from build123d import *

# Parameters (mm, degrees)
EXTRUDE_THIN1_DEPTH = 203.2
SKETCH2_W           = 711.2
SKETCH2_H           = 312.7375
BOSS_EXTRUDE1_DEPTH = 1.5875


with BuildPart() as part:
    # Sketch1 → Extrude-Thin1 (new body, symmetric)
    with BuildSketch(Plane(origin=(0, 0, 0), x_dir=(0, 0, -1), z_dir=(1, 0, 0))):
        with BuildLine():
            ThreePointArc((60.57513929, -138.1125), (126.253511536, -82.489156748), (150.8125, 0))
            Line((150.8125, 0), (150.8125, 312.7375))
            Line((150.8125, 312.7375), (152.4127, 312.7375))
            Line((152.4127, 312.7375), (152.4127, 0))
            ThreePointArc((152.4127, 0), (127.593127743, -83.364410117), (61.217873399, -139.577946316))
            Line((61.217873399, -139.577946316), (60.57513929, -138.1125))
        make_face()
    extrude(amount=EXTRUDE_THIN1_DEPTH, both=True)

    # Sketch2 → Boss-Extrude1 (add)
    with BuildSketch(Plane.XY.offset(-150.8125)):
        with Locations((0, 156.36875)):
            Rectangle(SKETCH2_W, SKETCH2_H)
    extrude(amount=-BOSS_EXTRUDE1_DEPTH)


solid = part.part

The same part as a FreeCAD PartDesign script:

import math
import FreeCAD as App
import Part
import Sketcher
from FreeCAD import Vector
Q = App.Units.Quantity

doc = App.newDocument("Part")
body = doc.addObject("PartDesign::Body", "Body")

sketch1 = body.newObject("Sketcher::SketchObject", "Sketch")
sketch1.AttachmentSupport = (doc.getObject("YZ_Plane"), [""])
sketch1.MapMode = "FlatFace"
sketch1.addGeometry(Part.ArcOfCircle(Part.Circle(Vector(0, 0, 0), Vector(0, 0, 1), 150.8), math.radians(-156), math.radians(-90)), False)
sketch1.addGeometry(Part.LineSegment(Vector(-138.1, -60.6, 0), Vector(-139.6, -61.2, 0)), False)
sketch1.addGeometry(Part.ArcOfCircle(Part.Circle(Vector(0, 0, 0), Vector(0, 0, 1), 152.4), math.radians(-156), math.radians(-90)), False)
sketch1.addGeometry(Part.LineSegment(Vector(0, -152.4, 0), Vector(312.7, -152.4, 0)), False)
sketch1.addGeometry(Part.LineSegment(Vector(312.7, -152.4, 0), Vector(312.7, -150.8, 0)), False)
sketch1.addGeometry(Part.LineSegment(Vector(312.7, -150.8, 0), Vector(0, -150.8, 0)), False)
sketch1.addConstraint(Sketcher.Constraint("Coincident", 0, 1, 1, 1))
sketch1.addConstraint(Sketcher.Constraint("Coincident", 1, 2, 2, 1))
sketch1.addConstraint(Sketcher.Constraint("Tangent", 2, 2, 3, 1))
sketch1.addConstraint(Sketcher.Constraint("Coincident", 3, 2, 4, 1))
sketch1.addConstraint(Sketcher.Constraint("Coincident", 4, 2, 5, 1))
sketch1.addConstraint(Sketcher.Constraint("Tangent", 5, 2, 0, 2))
sketch1.addConstraint(Sketcher.Constraint("Horizontal", 3))
sketch1.addConstraint(Sketcher.Constraint("Vertical", 4))
sketch1.addConstraint(Sketcher.Constraint("Horizontal", 5))
sketch1.addConstraint(Sketcher.Constraint("Coincident", 0, 3, -1, 1))
sketch1.addConstraint(Sketcher.Constraint("Coincident", 2, 3, -1, 1))
sketch1.addConstraint(Sketcher.Constraint("Radius", 0, Q("5.9375 in")))
sketch1.addConstraint(Sketcher.Constraint("Radius", 2, Q("6.0005 in")))
sketch1.addConstraint(Sketcher.Constraint("DistanceX", 3, 1, 3, 2, Q("12.3125 in")))
sketch1.addConstraint(Sketcher.Constraint("DistanceX", 0, 1, 3, 2, Q("17.75 in")))
sketch1.addConstraint(Sketcher.Constraint("DistanceX", 1, 2, -1, 1, 139.577946))
pad1 = body.newObject("PartDesign::Pad", "Pad")
pad1.Profile = sketch1
pad1.Length = Q("16 in")
pad1.Midplane = True

sketch2 = body.newObject("Sketcher::SketchObject", "Sketch001")
sketch2.AttachmentSupport = (doc.getObject("XY_Plane"), [""])
sketch2.MapMode = "FlatFace"
sketch2.AttachmentOffset = App.Placement(Vector(0, 0, -5.9375 * 25.4), App.Rotation())
sketch2.addGeometry(Part.LineSegment(Vector(-356, 313, 0), Vector(-356, 0, 0)), False)
sketch2.addGeometry(Part.LineSegment(Vector(-356, 0, 0), Vector(356, 0, 0)), False)
sketch2.addGeometry(Part.LineSegment(Vector(356, 0, 0), Vector(356, 313, 0)), False)
sketch2.addGeometry(Part.LineSegment(Vector(356, 313, 0), Vector(-356, 313, 0)), False)
sketch2.addConstraint(Sketcher.Constraint("Coincident", 0, 2, 1, 1))
sketch2.addConstraint(Sketcher.Constraint("Coincident", 1, 2, 2, 1))
sketch2.addConstraint(Sketcher.Constraint("Coincident", 2, 2, 3, 1))
sketch2.addConstraint(Sketcher.Constraint("Coincident", 3, 2, 0, 1))
sketch2.addConstraint(Sketcher.Constraint("Vertical", 0))
sketch2.addConstraint(Sketcher.Constraint("Horizontal", 1))
sketch2.addConstraint(Sketcher.Constraint("Vertical", 2))
sketch2.addConstraint(Sketcher.Constraint("Horizontal", 3))
sketch2.addConstraint(Sketcher.Constraint("Symmetric", 0, 2, 1, 2, -1, 1))
sketch2.addConstraint(Sketcher.Constraint("DistanceX", 1, 1, 1, 2, Q("28 in")))
sketch2.addConstraint(Sketcher.Constraint("DistanceY", 0, 2, 0, 1, Q("12.3125 in")))
pad2 = body.newObject("PartDesign::Pad", "Pad001")
pad2.Profile = sketch2
pad2.Length = Q("0.0625 in")
pad2.Reversed = True

doc.recompute()
